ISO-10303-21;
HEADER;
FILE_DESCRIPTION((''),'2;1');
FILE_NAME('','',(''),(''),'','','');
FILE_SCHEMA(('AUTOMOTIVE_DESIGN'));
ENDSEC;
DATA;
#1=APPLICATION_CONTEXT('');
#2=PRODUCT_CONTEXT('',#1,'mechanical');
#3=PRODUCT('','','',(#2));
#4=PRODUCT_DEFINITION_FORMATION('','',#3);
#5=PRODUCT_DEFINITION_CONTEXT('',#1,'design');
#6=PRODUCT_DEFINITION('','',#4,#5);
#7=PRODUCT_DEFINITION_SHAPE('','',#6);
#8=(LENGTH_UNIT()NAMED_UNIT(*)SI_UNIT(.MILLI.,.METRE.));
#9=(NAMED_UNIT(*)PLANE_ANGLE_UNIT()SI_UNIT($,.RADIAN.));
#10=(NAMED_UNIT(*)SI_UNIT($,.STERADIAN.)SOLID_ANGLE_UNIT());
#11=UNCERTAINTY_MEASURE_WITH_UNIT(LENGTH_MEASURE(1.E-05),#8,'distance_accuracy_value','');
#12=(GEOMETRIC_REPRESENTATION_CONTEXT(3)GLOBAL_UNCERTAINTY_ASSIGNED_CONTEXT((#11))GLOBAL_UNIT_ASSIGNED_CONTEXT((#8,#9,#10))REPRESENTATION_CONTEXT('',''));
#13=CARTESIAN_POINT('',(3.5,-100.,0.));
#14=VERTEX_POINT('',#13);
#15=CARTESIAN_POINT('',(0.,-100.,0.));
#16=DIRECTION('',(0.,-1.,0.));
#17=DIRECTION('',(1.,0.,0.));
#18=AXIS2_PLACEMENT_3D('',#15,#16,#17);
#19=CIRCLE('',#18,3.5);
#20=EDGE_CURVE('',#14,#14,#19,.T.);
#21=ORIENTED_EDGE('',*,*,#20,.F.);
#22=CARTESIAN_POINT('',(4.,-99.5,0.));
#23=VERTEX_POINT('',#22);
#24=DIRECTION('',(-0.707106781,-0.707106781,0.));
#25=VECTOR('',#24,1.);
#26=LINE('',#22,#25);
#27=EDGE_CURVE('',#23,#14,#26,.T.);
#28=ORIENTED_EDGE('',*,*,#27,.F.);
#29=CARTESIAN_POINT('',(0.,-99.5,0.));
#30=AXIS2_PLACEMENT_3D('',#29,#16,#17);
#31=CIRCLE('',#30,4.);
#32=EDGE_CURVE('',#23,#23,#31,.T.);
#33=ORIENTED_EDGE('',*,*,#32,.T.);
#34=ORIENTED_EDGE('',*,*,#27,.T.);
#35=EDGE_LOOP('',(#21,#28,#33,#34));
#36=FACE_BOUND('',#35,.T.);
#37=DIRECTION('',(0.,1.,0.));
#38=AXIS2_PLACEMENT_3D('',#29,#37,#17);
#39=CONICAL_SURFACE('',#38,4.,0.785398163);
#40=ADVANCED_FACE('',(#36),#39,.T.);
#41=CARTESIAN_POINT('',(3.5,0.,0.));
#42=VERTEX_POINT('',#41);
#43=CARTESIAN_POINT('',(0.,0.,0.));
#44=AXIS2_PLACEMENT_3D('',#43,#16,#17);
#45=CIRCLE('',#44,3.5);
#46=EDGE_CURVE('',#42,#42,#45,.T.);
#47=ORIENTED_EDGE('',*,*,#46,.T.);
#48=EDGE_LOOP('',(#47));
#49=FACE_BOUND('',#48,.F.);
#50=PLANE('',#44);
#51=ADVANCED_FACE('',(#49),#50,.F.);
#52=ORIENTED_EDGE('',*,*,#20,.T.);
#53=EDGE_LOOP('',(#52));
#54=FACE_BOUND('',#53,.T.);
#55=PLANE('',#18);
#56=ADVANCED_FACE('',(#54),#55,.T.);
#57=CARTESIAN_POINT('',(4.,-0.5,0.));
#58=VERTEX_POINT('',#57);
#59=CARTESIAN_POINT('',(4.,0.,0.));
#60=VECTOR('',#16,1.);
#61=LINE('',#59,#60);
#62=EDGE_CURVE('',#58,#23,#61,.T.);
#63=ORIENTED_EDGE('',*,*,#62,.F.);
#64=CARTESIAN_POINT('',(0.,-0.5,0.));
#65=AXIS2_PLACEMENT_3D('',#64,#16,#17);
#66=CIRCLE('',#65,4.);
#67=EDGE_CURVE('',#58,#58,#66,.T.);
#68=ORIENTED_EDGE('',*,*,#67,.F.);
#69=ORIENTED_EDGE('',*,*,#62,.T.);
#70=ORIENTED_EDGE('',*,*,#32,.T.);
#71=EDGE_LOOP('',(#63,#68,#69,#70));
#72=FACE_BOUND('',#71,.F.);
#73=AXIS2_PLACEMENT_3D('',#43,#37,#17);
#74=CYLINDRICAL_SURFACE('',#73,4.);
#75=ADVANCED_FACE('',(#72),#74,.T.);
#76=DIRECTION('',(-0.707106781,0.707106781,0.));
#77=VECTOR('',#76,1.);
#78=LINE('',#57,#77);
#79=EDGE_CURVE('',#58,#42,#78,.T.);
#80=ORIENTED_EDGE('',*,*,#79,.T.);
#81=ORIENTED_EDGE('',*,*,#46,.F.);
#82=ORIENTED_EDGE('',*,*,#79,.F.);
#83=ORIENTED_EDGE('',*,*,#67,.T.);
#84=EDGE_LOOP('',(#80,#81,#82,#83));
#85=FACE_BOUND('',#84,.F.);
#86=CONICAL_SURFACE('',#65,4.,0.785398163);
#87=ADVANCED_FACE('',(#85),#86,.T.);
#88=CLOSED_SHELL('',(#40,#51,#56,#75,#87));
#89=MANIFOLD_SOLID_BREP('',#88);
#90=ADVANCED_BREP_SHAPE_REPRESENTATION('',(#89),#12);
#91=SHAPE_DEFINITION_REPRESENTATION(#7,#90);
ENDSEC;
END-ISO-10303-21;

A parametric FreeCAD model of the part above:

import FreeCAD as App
import Part
import Sketcher

V = App.Vector
Q = App.Units.Quantity


def edges_at(feature, points):
    """Names of the edges that pass closest to the given points."""
    edges = feature.Shape.Edges
    near = lambda p: min(range(len(edges)), key=lambda i: edges[i].distToShape(Part.Vertex(*p))[0])
    return sorted({f"Edge{near(p) + 1}" for p in points})

doc = App.newDocument("Part")
params = doc.addObject("Spreadsheet::Sheet", "Params")
for row, (alias, value) in enumerate([
    ("sketch1_diameter", "8 mm"),
    ("pad1_length", "100 mm"),
    ("chamfer_size", "0.5 mm"),
    ("chamfer2_size", "0.5 mm"),
], start=1):
    params.set(f"A{row}", alias)
    params.set(f"B{row}", "=" + value)
    params.setAlias(f"B{row}", alias)

body = doc.addObject("PartDesign::Body", "Body")

# Sketch on XZ plane
sketch1 = body.newObject("Sketcher::SketchObject", "Sketch")
sketch1.AttachmentSupport = (doc.getObject("XZ_Plane"), [""])
sketch1.MapMode = "FlatFace"
sketch1.addGeometry(Part.Circle(V(0, 0, 0), V(0, 0, 1), 4), False)
sketch1.addConstraint(Sketcher.Constraint("Coincident", 0, 3, -1, 1))
sketch1.addConstraint(Sketcher.Constraint("Diameter", 0, Q("8 mm")))
sketch1.setExpression("Constraints[1]", "Params.sketch1_diameter")
pad1 = body.newObject("PartDesign::Pad", "Pad")
pad1.Profile = sketch1
pad1.setExpression("Length", "Params.pad1_length")
doc.recompute()

chamfer = body.newObject("PartDesign::Chamfer", "Chamfer")
chamfer.Base = (pad1, edges_at(pad1, [(-4, 0, 0)]))
chamfer.setExpression("Size", "Params.chamfer_size")
doc.recompute()

chamfer2 = body.newObject("PartDesign::Chamfer", "Chamfer001")
chamfer2.Base = (chamfer, edges_at(chamfer, [(-4, -100, 0)]))
chamfer2.setExpression("Size", "Params.chamfer2_size")

doc.recompute()
